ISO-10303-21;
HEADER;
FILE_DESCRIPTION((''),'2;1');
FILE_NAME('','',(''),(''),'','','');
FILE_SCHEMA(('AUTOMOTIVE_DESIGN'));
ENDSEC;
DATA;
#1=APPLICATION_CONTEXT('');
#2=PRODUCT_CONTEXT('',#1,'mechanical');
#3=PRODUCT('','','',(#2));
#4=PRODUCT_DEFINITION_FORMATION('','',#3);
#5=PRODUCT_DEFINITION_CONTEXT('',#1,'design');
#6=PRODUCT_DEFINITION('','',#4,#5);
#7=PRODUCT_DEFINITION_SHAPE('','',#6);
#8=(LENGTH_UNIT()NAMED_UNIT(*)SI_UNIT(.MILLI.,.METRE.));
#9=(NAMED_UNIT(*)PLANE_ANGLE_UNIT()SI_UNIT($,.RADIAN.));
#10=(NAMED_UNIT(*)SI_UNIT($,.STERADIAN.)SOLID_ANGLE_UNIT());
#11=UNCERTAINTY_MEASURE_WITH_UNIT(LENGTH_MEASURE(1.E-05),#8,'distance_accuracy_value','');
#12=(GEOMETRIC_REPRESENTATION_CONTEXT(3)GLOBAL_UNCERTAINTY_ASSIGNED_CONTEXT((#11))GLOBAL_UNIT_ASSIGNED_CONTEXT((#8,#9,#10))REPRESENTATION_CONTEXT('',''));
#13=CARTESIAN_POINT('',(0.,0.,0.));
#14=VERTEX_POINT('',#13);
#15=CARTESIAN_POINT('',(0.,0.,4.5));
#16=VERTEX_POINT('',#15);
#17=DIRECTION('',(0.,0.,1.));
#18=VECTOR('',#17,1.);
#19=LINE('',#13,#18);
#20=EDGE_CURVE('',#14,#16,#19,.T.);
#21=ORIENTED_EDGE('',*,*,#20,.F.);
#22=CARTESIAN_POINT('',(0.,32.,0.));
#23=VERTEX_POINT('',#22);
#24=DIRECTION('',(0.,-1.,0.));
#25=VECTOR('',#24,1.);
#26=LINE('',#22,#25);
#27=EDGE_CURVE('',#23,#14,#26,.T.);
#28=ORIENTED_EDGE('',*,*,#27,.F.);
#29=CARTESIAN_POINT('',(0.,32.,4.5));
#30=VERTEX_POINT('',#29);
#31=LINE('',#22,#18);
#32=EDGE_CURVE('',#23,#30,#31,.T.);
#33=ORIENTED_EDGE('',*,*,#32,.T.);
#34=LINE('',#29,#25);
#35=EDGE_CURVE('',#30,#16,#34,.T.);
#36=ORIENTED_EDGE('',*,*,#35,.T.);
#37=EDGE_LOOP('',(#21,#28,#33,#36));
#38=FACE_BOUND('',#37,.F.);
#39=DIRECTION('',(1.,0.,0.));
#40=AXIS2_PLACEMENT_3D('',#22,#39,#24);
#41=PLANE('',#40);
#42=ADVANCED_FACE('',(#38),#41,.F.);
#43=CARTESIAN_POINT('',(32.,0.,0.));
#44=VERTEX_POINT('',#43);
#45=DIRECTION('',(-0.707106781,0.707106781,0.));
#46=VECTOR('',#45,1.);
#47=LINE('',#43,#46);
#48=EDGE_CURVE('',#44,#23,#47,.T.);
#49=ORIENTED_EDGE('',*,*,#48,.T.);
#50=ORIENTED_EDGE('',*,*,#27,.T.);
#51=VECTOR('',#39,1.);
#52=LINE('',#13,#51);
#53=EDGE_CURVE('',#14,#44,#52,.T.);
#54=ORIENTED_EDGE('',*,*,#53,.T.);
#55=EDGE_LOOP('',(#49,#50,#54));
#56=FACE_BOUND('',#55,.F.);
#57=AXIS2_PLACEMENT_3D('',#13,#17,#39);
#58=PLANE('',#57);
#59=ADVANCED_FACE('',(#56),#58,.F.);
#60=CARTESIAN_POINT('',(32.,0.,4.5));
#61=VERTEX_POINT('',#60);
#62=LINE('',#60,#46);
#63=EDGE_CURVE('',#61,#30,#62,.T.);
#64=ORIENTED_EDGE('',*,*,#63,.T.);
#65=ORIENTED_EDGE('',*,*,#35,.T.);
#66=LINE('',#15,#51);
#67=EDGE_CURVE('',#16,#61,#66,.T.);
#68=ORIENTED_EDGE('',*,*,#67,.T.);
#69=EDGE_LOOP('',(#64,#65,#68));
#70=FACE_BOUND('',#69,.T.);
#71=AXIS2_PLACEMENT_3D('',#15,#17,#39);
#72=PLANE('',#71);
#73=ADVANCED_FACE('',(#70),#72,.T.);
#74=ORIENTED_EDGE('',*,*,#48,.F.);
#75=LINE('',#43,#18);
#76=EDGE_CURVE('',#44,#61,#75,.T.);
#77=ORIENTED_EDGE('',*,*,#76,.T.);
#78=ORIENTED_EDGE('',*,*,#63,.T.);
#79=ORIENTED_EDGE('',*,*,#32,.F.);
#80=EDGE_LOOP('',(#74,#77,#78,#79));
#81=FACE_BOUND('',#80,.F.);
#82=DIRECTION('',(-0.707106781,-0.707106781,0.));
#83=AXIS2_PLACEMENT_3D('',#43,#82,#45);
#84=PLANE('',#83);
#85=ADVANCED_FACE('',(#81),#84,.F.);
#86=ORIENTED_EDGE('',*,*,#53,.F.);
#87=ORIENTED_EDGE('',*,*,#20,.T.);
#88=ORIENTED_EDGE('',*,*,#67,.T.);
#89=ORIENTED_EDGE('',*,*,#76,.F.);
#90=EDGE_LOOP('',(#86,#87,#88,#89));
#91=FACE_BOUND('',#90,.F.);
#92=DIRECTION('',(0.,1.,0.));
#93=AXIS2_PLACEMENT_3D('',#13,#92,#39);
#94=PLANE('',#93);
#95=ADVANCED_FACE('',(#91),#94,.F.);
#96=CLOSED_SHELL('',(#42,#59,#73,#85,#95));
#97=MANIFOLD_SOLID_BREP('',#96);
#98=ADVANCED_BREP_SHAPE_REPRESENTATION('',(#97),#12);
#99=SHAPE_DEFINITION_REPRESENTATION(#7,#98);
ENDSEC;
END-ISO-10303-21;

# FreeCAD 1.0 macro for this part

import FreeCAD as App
import Part
import Sketcher

V = App.Vector

doc = App.newDocument("Part")
body = doc.addObject("PartDesign::Body", "Body")

# Sketch on XY plane
sketch1 = body.newObject("Sketcher::SketchObject", "Sketch")
sketch1.AttachmentSupport = (doc.getObject("XY_Plane"), [""])
sketch1.MapMode = "FlatFace"
sketch1.addGeometry([
    Part.LineSegment(V(0, 32, 0), V(0, 0, 0)),
    Part.LineSegment(V(0, 0, 0), V(32, 0, 0)),
    Part.LineSegment(V(32, 0, 0), V(0, 32, 0)),
], False)
sketch1.addConstraint([
    Sketcher.Constraint("Coincident", 0, 2, 1, 1),
    Sketcher.Constraint("Coincident", 1, 2, 2, 1),
    Sketcher.Constraint("Coincident", 2, 2, 0, 1),
    Sketcher.Constraint("Vertical", 0),
    Sketcher.Constraint("Horizontal", 1),
    Sketcher.Constraint("Coincident", 0, 2, -1, 1),
    Sketcher.Constraint("Equal", 1, 0),
    Sketcher.Constraint("DistanceX", 1, 1, 1, 2, 32.0),
])
pad1 = body.newObject("PartDesign::Pad", "Pad")
pad1.Profile = sketch1
pad1.Length = 4.5

doc.recompute()
